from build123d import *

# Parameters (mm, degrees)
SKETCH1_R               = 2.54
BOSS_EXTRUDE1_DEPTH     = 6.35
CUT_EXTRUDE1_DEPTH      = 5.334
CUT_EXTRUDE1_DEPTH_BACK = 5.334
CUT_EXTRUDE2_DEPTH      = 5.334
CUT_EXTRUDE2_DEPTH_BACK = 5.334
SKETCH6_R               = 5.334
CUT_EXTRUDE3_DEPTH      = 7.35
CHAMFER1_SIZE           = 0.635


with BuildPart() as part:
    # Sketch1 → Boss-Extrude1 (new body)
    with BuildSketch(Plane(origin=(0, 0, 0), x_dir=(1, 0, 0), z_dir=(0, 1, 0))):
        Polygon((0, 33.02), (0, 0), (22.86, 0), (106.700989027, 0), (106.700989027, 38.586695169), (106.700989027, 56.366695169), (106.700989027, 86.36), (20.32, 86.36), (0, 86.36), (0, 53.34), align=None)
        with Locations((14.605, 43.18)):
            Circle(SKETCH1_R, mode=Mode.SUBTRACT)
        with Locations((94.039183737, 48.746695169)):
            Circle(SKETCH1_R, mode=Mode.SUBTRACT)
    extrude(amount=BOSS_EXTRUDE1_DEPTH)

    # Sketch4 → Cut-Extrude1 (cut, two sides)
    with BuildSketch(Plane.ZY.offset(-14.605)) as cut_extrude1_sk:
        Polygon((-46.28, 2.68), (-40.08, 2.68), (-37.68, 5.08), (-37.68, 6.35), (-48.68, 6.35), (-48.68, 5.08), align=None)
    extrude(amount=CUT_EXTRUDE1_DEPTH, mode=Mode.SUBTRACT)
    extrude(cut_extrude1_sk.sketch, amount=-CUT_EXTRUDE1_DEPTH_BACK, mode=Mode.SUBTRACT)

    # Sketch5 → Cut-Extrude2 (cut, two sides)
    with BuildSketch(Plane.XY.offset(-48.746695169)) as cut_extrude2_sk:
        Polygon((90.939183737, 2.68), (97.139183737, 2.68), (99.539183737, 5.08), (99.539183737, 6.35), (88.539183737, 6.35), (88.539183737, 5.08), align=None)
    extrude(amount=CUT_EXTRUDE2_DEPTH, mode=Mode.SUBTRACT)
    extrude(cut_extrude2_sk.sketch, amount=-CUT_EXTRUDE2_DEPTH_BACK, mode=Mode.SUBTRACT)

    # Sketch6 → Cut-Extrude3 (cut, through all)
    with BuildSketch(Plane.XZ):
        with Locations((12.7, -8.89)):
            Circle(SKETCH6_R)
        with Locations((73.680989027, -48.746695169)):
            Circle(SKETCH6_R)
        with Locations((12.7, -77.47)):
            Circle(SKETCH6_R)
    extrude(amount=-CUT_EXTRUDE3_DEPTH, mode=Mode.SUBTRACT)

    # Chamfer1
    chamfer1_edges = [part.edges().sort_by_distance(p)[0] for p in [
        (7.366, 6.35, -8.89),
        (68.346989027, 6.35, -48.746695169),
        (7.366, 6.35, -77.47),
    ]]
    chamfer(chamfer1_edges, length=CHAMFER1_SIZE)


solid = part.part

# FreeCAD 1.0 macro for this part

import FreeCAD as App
import Part
import Sketcher
from FreeCAD import Vector
Q = App.Units.Quantity


def edges_at(feature, points):
    """Names of the edges that pass closest to the given points."""
    edges = feature.Shape.Edges
    near = lambda p: min(range(len(edges)), key=lambda i: edges[i].distToShape(Part.Vertex(*p))[0])
    return sorted({f"Edge{near(p) + 1}" for p in points})


def add_polygon(sketch, points):
    """Adds a closed chain of lines whose ends are joined by coincident constraints."""
    first, n = sketch.GeometryCount, len(points)
    for a, b in zip(points, points[1:] + points[:1]):
        sketch.addGeometry(Part.LineSegment(App.Vector(*a, 0), App.Vector(*b, 0)), False)
    for i in range(n):
        sketch.addConstraint(Sketcher.Constraint("Coincident", first + i, 2, first + (i + 1) % n, 1))

doc = App.newDocument("Part")
body = doc.addObject("PartDesign::Body", "Body")

sketch1 = doc.addObject("Sketcher::SketchObject", "Sketch")
body.addObject(sketch1)
sketch1.AttachmentSupport = (doc.XZ_Plane, [""])
sketch1.MapMode = "FlatFace"
add_polygon(sketch1, [(0, 0), (106.7, 0), (106.7, -86.4), (0, -86.4)])
sketch1.addGeometry(Part.Circle(Vector(14.6, -43.2, 0), Vector(0, 0, 1), 2.5), False)
sketch1.addGeometry(Part.Circle(Vector(94, -48.7, 0), Vector(0, 0, 1), 2.5), False)
sketch1.addConstraint([
    Sketcher.Constraint("Horizontal", 0),
    Sketcher.Constraint("Vertical", 1),
    Sketcher.Constraint("Horizontal", 2),
    Sketcher.Constraint("Vertical", 3),
    Sketcher.Constraint("Coincident", 3, 2, -1, 1),
    Sketcher.Constraint("Equal", 4, 5),
    Sketcher.Constraint("Diameter", 4, Q("0.2 in")),
    Sketcher.Constraint("DistanceY", 1, 2, 1, 1, Q("3.4 in")),
    Sketcher.Constraint("DistanceY", 4, 3, -1, 1, Q("1.7 in")),
    Sketcher.Constraint("DistanceX", -1, 1, 4, 3, Q("0.575 in")),
    Sketcher.Constraint("DistanceX", 0, 1, 0, 2, 106.700989),
    Sketcher.Constraint("DistanceX", -1, 1, 5, 3, 94.039184),
    Sketcher.Constraint("DistanceY", 5, 3, -1, 1, 48.746695),
])
pad1 = doc.addObject("PartDesign::Pad", "Pad")
body.addObject(pad1)
pad1.Profile = sketch1
pad1.Length = Q("0.25 in")
pad1.Reversed = True

sketch2 = doc.addObject("Sketcher::SketchObject", "Sketch001")
body.addObject(sketch2)
sketch2.AttachmentSupport = (doc.YZ_Plane, [""])
sketch2.MapMode = "FlatFace"
sketch2.AttachmentOffset = App.Placement(Vector(0, 0, 0.575 * 25.4), App.Rotation())
add_polygon(sketch2, [(2.7, -46.3), (2.7, -40.1), (5.1, -37.7), (6.3, -37.7), (6.3, -48.7), (5.1, -48.7)])
sketch2.addConstraint([
    Sketcher.Constraint("Vertical", 0),
    Sketcher.Constraint("Horizontal", 2),
    Sketcher.Constraint("Vertical", 3),
    Sketcher.Constraint("Horizontal", 4),
    Sketcher.Constraint("Perpendicular", 1, 5),
    Sketcher.Constraint("Vertical", 1, 2, 4, 2),
    Sketcher.Constraint("Equal", 1, 5),
    Sketcher.Constraint("DistanceX", 2, 1, 2, 2, Q("0.05 in")),
    Sketcher.Constraint("DistanceX", -1, 1, 1, 2, Q("0.2 in")),
    Sketcher.Constraint("DistanceY", 0, 1, 0, 2, 6.2),
    Sketcher.Constraint("DistanceY", 3, 2, 3, 1, 11.0),
    Sketcher.Constraint("DistanceY", 0, 2, -1, 1, 40.08),
])
pocket1 = doc.addObject("PartDesign::Pocket", "Pocket")
body.addObject(pocket1)
pocket1.Profile = sketch2
pocket1.Type = "TwoLengths"
pocket1.Length = Q("0.21 in")
pocket1.Length2 = Q("0.21 in")

sketch3 = doc.addObject("Sketcher::SketchObject", "Sketch002")
body.addObject(sketch3)
sketch3.AttachmentSupport = (doc.XY_Plane, [""])
sketch3.MapMode = "FlatFace"
sketch3.AttachmentOffset = App.Placement(Vector(0, 0, -48.746695), App.Rotation())
add_polygon(sketch3, [(90.9, 2.7), (97.1, 2.7), (99.5, 5.1), (99.5, 6.3), (88.5, 6.3), (88.5, 5.1)])
sketch3.addConstraint([
    Sketcher.Constraint("Horizontal", 0),
    Sketcher.Constraint("Vertical", 2),
    Sketcher.Constraint("Horizontal", 3),
    Sketcher.Constraint("Vertical", 4),
    Sketcher.Constraint("Perpendicular", 1, 5),
    Sketcher.Constraint("Horizontal", 1, 2, 4, 2),
    Sketcher.Constraint("Equal", 1, 5),
    Sketcher.Constraint("DistanceY", 2, 1, 2, 2, Q("0.05 in")),
    Sketcher.Constraint("DistanceY", -1, 1, 1, 2, Q("0.2 in")),
    Sketcher.Constraint("DistanceX", 0, 1, 0, 2, 6.2),
    Sketcher.Constraint("DistanceX", 3, 2, 3, 1, 11.0),
    Sketcher.Constraint("DistanceX", -1, 1, 0, 2, 97.139184),
])
pocket2 = doc.addObject("PartDesign::Pocket", "Pocket001")
body.addObject(pocket2)
pocket2.Profile = sketch3
pocket2.Type = "TwoLengths"
pocket2.Length = Q("0.21 in")
pocket2.Length2 = Q("0.21 in")
pocket2.Reversed = True

sketch4 = doc.addObject("Sketcher::SketchObject", "Sketch003")
body.addObject(sketch4)
sketch4.AttachmentSupport = (doc.XZ_Plane, [""])
sketch4.MapMode = "FlatFace"
sketch4.addGeometry([
    Part.Circle(Vector(13, -9, 0), Vector(0, 0, 1), 5),
    Part.Circle(Vector(74, -49, 0), Vector(0, 0, 1), 5),
    Part.Circle(Vector(13, -77, 0), Vector(0, 0, 1), 5),
], False)
sketch4.addConstraint([
    Sketcher.Constraint("Equal", 0, 1),
    Sketcher.Constraint("Equal", 1, 2),
    Sketcher.Constraint("Vertical", 0, 3, 2, 3),
    Sketcher.Constraint("Diameter", 0, Q("0.42 in")),
    Sketcher.Constraint("DistanceX", -1, 1, 0, 3, Q("0.5 in")),
    Sketcher.Constraint("DistanceY", 2, 3, 0, 3, Q("2.7 in")),
    Sketcher.Constraint("DistanceY", 0, 3, -1, 1, Q("0.35 in")),
    Sketcher.Constraint("DistanceX", -1, 1, 1, 3, 73.680989),
    Sketcher.Constraint("DistanceY", 1, 3, -1, 1, 48.746695),
])
pocket3 = doc.addObject("PartDesign::Pocket", "Pocket002")
body.addObject(pocket3)
pocket3.Profile = sketch4
pocket3.Type = "ThroughAll"
doc.recompute()

chamfer = doc.addObject("PartDesign::Chamfer", "Chamfer")
body.addObject(chamfer)
chamfer.Base = (pocket3, edges_at(pocket3, [(7.366, 6.35, -8.89), (68.347, 6.35, -48.747), (7.366, 6.35, -77.47)]))
chamfer.Size = Q("0.025 in")

doc.recompute()
